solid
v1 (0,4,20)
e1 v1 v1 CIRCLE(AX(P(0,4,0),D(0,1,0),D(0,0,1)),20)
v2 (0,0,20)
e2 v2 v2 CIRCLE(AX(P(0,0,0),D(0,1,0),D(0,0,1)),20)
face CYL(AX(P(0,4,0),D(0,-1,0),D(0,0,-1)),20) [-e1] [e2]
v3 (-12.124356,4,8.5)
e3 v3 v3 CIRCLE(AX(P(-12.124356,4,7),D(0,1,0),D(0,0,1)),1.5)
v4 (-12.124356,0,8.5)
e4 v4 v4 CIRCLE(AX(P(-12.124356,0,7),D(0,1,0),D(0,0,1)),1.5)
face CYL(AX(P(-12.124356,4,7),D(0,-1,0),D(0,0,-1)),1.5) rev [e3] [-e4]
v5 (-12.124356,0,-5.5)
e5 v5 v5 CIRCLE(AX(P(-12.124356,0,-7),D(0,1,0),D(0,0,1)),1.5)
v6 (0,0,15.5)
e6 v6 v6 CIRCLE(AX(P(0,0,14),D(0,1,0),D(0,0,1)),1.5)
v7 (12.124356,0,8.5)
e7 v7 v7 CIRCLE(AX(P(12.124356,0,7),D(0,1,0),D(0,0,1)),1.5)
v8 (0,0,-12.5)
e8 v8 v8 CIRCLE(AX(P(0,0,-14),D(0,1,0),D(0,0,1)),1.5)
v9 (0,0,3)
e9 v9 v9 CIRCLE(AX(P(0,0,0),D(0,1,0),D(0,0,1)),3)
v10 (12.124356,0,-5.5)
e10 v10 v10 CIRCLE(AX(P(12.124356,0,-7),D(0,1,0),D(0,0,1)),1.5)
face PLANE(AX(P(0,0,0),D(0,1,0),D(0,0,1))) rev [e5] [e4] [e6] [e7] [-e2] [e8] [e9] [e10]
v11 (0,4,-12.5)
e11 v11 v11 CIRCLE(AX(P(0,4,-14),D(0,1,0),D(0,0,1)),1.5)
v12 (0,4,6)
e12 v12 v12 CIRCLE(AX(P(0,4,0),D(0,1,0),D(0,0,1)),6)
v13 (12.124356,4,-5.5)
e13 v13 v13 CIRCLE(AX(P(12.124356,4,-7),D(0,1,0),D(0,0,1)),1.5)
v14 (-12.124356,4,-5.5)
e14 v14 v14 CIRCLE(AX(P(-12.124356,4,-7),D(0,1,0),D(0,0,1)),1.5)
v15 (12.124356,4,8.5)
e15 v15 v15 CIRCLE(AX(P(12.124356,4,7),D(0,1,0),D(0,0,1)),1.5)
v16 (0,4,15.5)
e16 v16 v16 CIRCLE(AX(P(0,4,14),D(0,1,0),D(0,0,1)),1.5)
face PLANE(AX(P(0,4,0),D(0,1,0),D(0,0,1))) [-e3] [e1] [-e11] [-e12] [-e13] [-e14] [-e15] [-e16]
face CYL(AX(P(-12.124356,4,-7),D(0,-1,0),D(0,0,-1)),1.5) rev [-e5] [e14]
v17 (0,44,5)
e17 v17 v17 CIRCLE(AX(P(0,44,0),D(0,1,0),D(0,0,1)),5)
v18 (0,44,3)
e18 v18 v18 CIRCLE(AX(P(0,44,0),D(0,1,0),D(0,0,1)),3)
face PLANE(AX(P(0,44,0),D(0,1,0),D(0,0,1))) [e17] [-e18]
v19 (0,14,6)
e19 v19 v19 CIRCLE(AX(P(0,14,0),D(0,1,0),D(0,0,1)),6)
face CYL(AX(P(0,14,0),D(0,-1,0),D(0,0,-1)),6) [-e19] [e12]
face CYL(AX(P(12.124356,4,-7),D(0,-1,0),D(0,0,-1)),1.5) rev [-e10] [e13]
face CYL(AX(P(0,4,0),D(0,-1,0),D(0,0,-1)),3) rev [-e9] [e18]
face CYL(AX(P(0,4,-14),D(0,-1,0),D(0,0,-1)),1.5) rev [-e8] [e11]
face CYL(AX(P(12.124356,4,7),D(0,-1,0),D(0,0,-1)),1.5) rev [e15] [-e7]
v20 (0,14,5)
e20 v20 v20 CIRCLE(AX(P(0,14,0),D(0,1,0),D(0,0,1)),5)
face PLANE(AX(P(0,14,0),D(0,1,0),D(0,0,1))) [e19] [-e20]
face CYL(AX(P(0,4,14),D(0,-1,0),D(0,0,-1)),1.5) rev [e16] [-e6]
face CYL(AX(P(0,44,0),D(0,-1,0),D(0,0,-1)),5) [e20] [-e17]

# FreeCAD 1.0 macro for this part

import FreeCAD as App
import Part
import Sketcher

V = App.Vector
Q = App.Units.Quantity

doc = App.newDocument("Part")
body = doc.addObject("PartDesign::Body", "Body")

sketch1 = body.newObject("Sketcher::SketchObject", "Sketch")
sketch1.AttachmentSupport = (doc.getObject("XZ_Plane"), [""])
sketch1.MapMode = "FlatFace"
sketch1.addGeometry([
    Part.Circle(V(0, 0, 0), V(0, 0, 1), 20),
    Part.Circle(V(-12.124356, -7, 0), V(0, 0, 1), 1.5),
    Part.Circle(V(0, -14, 0), V(0, 0, 1), 1.5),
    Part.Circle(V(-12.124356, 7, 0), V(0, 0, 1), 1.5),
    Part.Circle(V(12.124356, -7, 0), V(0, 0, 1), 1.5),
    Part.Circle(V(0, 0, 0), V(0, 0, 1), 3),
    Part.Circle(V(0, 14, 0), V(0, 0, 1), 1.5),
    Part.Circle(V(12.124356, 7, 0), V(0, 0, 1), 1.5),
], False)
sketch1.addConstraint([
    Sketcher.Constraint("Coincident", 0, 3, -1, 1),
    Sketcher.Constraint("Coincident", 5, 3, -1, 1),
    Sketcher.Constraint("Equal", 1, 2),
    Sketcher.Constraint("Equal", 2, 3),
    Sketcher.Constraint("Equal", 3, 4),
    Sketcher.Constraint("Equal", 4, 6),
    Sketcher.Constraint("Equal", 6, 7),
    Sketcher.Constraint("Symmetric", 3, 3, 4, 3, -1, 1),
    Sketcher.Constraint("Symmetric", 2, 3, 6, 3, -1, 1),
    Sketcher.Constraint("Symmetric", 1, 3, 7, 3, -1, 1),
    Sketcher.Constraint("Symmetric", 1, 3, 4, 3, -2),
    Sketcher.Constraint("PointOnObject", 2, 3, -2),
    Sketcher.Constraint("Diameter", 0, Q("40 mm")),
    Sketcher.Constraint("Diameter", 1, Q("3 mm")),
    Sketcher.Constraint("Diameter", 5, Q("6 mm")),
    Sketcher.Constraint("DistanceY", 1, 3, -1, 1, Q("7 mm")),
    Sketcher.Constraint("DistanceY", 2, 3, -1, 1, Q("14 mm")),
    Sketcher.Constraint("DistanceX", 1, 3, 4, 3, Q("24.248711 mm")),
])
pad1 = body.newObject("PartDesign::Pad", "Pad")
pad1.Profile = sketch1
pad1.Length = 4
pad1.Reversed = True

sketch2 = body.newObject("Sketcher::SketchObject", "Sketch001")
sketch2.AttachmentSupport = (doc.getObject("XZ_Plane"), [""])
sketch2.MapMode = "FlatFace"
sketch2.AttachmentOffset = App.Placement(V(0, 0, -4), App.Rotation())
sketch2.addGeometry([
    Part.Circle(V(0, 0, 0), V(0, 0, 1), 6),
    Part.Circle(V(0, 0, 0), V(0, 0, 1), 3),
], False)
sketch2.addConstraint([
    Sketcher.Constraint("Coincident", 0, 3, -1, 1),
    Sketcher.Constraint("Coincident", 1, 3, -1, 1),
    Sketcher.Constraint("Diameter", 0, Q("12 mm")),
    Sketcher.Constraint("Diameter", 1, Q("6 mm")),
])
pad2 = body.newObject("PartDesign::Pad", "Pad001")
pad2.Profile = sketch2
pad2.Length = 10
pad2.Reversed = True

sketch3 = body.newObject("Sketcher::SketchObject", "Sketch002")
sketch3.AttachmentSupport = (doc.getObject("XZ_Plane"), [""])
sketch3.MapMode = "FlatFace"
sketch3.AttachmentOffset = App.Placement(V(0, 0, -14), App.Rotation())
sketch3.addGeometry([
    Part.Circle(V(0, 0, 0), V(0, 0, 1), 5),
    Part.Circle(V(0, 0, 0), V(0, 0, 1), 3),
], False)
sketch3.addConstraint([
    Sketcher.Constraint("Coincident", 0, 3, -1, 1),
    Sketcher.Constraint("Coincident", 1, 3, -1, 1),
    Sketcher.Constraint("Diameter", 0, Q("10 mm")),
    Sketcher.Constraint("Diameter", 1, Q("6 mm")),
])
pad3 = body.newObject("PartDesign::Pad", "Pad002")
pad3.Profile = sketch3
pad3.Length = 30
pad3.Reversed = True

doc.recompute()
